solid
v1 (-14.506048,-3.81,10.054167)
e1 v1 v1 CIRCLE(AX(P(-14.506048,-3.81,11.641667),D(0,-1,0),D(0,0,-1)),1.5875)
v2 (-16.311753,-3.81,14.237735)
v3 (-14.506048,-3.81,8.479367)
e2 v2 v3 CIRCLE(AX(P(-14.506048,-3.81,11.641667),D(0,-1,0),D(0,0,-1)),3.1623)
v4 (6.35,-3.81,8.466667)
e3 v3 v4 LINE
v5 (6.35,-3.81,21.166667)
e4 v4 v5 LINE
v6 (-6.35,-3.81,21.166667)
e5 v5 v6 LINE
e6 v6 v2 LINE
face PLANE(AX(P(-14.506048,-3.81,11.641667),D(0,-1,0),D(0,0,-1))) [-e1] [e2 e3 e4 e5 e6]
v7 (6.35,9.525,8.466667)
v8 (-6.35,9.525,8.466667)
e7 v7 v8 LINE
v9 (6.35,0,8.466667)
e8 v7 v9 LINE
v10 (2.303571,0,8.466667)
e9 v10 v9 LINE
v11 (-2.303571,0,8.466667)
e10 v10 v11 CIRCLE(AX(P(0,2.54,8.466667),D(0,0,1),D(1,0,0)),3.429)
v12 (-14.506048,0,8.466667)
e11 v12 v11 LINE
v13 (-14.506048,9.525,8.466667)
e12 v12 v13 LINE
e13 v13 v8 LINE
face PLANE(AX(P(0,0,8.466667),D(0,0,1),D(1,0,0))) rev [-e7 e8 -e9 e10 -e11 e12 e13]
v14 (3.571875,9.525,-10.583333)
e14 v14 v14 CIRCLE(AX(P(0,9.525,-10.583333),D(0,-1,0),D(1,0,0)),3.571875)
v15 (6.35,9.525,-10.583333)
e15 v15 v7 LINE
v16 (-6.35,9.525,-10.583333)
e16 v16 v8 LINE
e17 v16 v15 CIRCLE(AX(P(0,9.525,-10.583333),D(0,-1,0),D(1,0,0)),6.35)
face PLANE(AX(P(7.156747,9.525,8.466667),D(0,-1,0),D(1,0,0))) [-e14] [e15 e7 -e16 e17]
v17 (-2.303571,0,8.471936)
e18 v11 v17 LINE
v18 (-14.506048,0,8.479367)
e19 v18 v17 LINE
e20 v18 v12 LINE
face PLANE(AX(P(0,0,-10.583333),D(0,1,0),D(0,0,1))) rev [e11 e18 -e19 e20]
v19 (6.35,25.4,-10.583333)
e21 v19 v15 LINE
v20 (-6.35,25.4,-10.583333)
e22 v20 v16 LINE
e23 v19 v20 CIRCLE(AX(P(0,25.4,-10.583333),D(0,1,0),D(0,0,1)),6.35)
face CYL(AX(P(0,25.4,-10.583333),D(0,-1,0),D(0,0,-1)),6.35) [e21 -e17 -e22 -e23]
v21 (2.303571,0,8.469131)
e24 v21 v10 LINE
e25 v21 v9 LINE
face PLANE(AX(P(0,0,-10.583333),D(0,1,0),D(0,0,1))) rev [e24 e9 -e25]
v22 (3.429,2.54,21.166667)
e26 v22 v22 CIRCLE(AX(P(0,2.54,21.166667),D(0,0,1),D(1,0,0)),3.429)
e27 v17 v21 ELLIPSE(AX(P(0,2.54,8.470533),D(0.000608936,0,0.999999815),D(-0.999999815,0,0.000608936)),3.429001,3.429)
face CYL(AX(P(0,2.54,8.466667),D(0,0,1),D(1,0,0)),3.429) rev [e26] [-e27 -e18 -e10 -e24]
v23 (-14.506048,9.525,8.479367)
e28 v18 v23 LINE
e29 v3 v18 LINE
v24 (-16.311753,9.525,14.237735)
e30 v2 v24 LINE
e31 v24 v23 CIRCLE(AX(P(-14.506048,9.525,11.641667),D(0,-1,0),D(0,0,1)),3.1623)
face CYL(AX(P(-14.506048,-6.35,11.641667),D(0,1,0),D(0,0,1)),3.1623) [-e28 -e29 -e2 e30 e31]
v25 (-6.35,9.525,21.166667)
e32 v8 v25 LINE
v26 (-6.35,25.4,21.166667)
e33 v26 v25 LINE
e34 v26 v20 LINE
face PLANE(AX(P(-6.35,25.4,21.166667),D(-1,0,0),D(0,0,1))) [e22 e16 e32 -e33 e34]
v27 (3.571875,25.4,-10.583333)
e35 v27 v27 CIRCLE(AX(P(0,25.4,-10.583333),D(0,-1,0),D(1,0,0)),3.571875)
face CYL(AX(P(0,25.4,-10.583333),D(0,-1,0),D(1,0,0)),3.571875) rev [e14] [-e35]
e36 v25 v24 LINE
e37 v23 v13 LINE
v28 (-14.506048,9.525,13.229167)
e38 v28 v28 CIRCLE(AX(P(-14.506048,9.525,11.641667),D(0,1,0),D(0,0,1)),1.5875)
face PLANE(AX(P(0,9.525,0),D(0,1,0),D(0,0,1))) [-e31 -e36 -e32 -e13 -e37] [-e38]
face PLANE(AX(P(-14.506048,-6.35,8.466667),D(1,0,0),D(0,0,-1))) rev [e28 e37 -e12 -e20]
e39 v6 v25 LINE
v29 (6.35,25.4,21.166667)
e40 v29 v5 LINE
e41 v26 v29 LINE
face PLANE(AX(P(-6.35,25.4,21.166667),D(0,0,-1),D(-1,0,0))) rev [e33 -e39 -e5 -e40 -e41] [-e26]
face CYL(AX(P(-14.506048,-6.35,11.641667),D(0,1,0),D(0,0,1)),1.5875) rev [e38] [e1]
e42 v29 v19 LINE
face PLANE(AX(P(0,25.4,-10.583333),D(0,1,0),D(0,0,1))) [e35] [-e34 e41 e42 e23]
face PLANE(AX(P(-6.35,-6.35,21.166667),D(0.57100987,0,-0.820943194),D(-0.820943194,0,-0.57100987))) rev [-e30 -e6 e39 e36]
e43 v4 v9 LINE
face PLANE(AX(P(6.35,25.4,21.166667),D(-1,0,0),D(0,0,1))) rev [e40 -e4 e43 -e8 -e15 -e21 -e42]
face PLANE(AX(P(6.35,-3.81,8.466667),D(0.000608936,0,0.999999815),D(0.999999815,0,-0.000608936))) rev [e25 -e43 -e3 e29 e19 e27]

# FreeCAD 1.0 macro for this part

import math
import FreeCAD as App
import Part
import Sketcher
Q = App.Units.Quantity

doc = App.newDocument("Part")
body = doc.addObject("PartDesign::Body", "Body")

sketch1 = body.newObject("Sketcher::SketchObject", "Sketch")
sketch1.AttachmentSupport = (doc.getObject("XZ_Plane"), [""])
sketch1.MapMode = "FlatFace"
sketch1.addGeometry([
    Part.LineSegment(App.Vector(-6.35, 21.166667, 0), App.Vector(6.35, 21.166667, 0)),
    Part.LineSegment(App.Vector(6.35, 21.166667, 0), App.Vector(6.35, -10.583333, 0)),
    Part.ArcOfCircle(Part.Circle(App.Vector(0, -10.583333, 0), App.Vector(0, 0, 1), 6.35), math.radians(180), math.radians(360)),
    Part.LineSegment(App.Vector(-6.35, -10.583333, 0), App.Vector(-6.35, 21.166667, 0)),
], False)
sketch1.addConstraint([
    Sketcher.Constraint("Coincident", 0, 2, 1, 1),
    Sketcher.Constraint("Tangent", 1, 2, 2, 2),
    Sketcher.Constraint("Tangent", 2, 1, 3, 1),
    Sketcher.Constraint("Coincident", 3, 2, 0, 1),
    Sketcher.Constraint("Horizontal", 0),
    Sketcher.Constraint("Vertical", 1),
    Sketcher.Constraint("Vertical", 3),
    Sketcher.Constraint("PointOnObject", 2, 3, -2),
    Sketcher.Constraint("Radius", 2, Q("0.25 in")),
    Sketcher.Constraint("DistanceY", 1, 2, 1, 1, Q("1.25 in")),
    Sketcher.Constraint("DistanceY", 2, 3, -1, 1, 10.583333),
])
pad1 = body.newObject("PartDesign::Pad", "Pad")
pad1.Profile = sketch1
pad1.Length = Q("1 in")
pad1.Reversed = True

sketch2 = body.newObject("Sketcher::SketchObject", "Sketch001")
sketch2.AttachmentSupport = (doc.getObject("XZ_Plane"), [""])
sketch2.MapMode = "FlatFace"
sketch2.addGeometry(Part.Circle(App.Vector(0, -10.583333, 0), App.Vector(0, 0, 1), 3.175), False)
sketch2.addConstraint([
    Sketcher.Constraint("PointOnObject", 0, 3, -2),
    Sketcher.Constraint("Diameter", 0, Q("0.25 in")),
    Sketcher.Constraint("DistanceY", 0, 3, -1, 1, 10.583333),
])
pocket1 = body.newObject("PartDesign::Pocket", "Pocket")
pocket1.Profile = sketch2
pocket1.Type = "UpToFirst"

sketch3 = body.newObject("Sketcher::SketchObject", "Sketch002")
sketch3.AttachmentSupport = (doc.getObject("XY_Plane"), [""])
sketch3.MapMode = "FlatFace"
sketch3.AttachmentOffset = App.Placement(App.Vector(0, 0, -16.933333), App.Rotation())
sketch3.addGeometry([
    Part.LineSegment(App.Vector(-6.912457, 9.525, 0), App.Vector(-6.912457, 0, 0)),
    Part.LineSegment(App.Vector(-6.912457, 0, 0), App.Vector(7.156747, 0, 0)),
    Part.LineSegment(App.Vector(7.156747, 0, 0), App.Vector(7.156747, 9.525, 0)),
    Part.LineSegment(App.Vector(7.156747, 9.525, 0), App.Vector(-6.912457, 9.525, 0)),
], False)
sketch3.addConstraint([
    Sketcher.Constraint("Coincident", 0, 2, 1, 1),
    Sketcher.Constraint("Coincident", 1, 2, 2, 1),
    Sketcher.Constraint("Coincident", 2, 2, 3, 1),
    Sketcher.Constraint("Coincident", 3, 2, 0, 1),
    Sketcher.Constraint("Vertical", 0),
    Sketcher.Constraint("Horizontal", 1),
    Sketcher.Constraint("Vertical", 2),
    Sketcher.Constraint("Horizontal", 3),
    Sketcher.Constraint("PointOnObject", 0, 2, -1),
    Sketcher.Constraint("DistanceY", 0, 2, 0, 1, Q("0.375 in")),
    Sketcher.Constraint("DistanceX", 1, 1, 1, 2, 14.069204),
    Sketcher.Constraint("DistanceX", 0, 2, -1, 1, 6.912457),
])
pocket2 = body.newObject("PartDesign::Pocket", "Pocket001")
pocket2.Profile = sketch3
pocket2.Length = Q("1 in")
pocket2.Reversed = True

sketch4 = body.newObject("Sketcher::SketchObject", "Sketch003")
sketch4.AttachmentSupport = (doc.getObject("YZ_Plane"), [""])
sketch4.MapMode = "FlatFace"
sketch4.AttachmentOffset = App.Placement(App.Vector(0, 0, 0.25 * 25.4), App.Rotation())
sketch4.addGeometry([
    Part.LineSegment(App.Vector(9.525, 21.166667, 0), App.Vector(0, 21.166667, 0)),
    Part.LineSegment(App.Vector(0, 21.166667, 0), App.Vector(0, 8.466667, 0)),
    Part.LineSegment(App.Vector(0, 8.466667, 0), App.Vector(9.525, 8.466667, 0)),
    Part.LineSegment(App.Vector(9.525, 8.466667, 0), App.Vector(9.525, 21.166667, 0)),
], False)
sketch4.addConstraint([
    Sketcher.Constraint("Coincident", 0, 2, 1, 1),
    Sketcher.Constraint("Coincident", 1, 2, 2, 1),
    Sketcher.Constraint("Coincident", 2, 2, 3, 1),
    Sketcher.Constraint("Coincident", 3, 2, 0, 1),
    Sketcher.Constraint("Horizontal", 0),
    Sketcher.Constraint("Vertical", 1),
    Sketcher.Constraint("Horizontal", 2),
    Sketcher.Constraint("Vertical", 3),
    Sketcher.Constraint("PointOnObject", 0, 2, -2),
    Sketcher.Constraint("DistanceY", 1, 2, 1, 1, Q("0.5 in")),
    Sketcher.Constraint("DistanceX", 0, 2, 0, 1, Q("0.375 in")),
    Sketcher.Constraint("DistanceY", -1, 1, 0, 2, 21.166667),
])
pad2 = body.newObject("PartDesign::Pad", "Pad001")
pad2.Profile = sketch4
pad2.Length = Q("0.5 in")

sketch5 = body.newObject("Sketcher::SketchObject", "Sketch004")
sketch5.AttachmentSupport = (doc.getObject("XZ_Plane"), [""])
sketch5.MapMode = "FlatFace"
sketch5.AttachmentOffset = App.Placement(App.Vector(0, 0, -0.375 * 25.4), App.Rotation())
sketch5.addGeometry([
    Part.ArcOfCircle(Part.Circle(App.Vector(15.875, 11.641662, 0), App.Vector(0, 0, 1), 3.174996), math.radians(-90.000001), math.radians(-88.090747)),
    Part.ArcOfCircle(Part.Circle(App.Vector(15.875, 11.641667, 0), App.Vector(0, 0, 1), 3.175), math.radians(-88.090748), math.radians(0)),
    Part.LineSegment(App.Vector(19.05, 11.641667, 0), App.Vector(19.05, 8.466667, 0)),
    Part.LineSegment(App.Vector(19.05, 8.466667, 0), App.Vector(15.875, 8.466667, 0)),
    Part.LineSegment(App.Vector(12.84784, 12.599229, 0), App.Vector(6.35, 21.166667, 0)),
    Part.LineSegment(App.Vector(6.35, 21.166667, 0), App.Vector(19.05, 21.166667, 0)),
    Part.LineSegment(App.Vector(19.05, 21.166667, 0), App.Vector(19.05, 11.641667, 0)),
    Part.ArcOfCircle(Part.Circle(App.Vector(15.875, 11.641667, 0), App.Vector(0, 0, 1), 3.175), math.radians(0), math.radians(162.446611)),
    Part.Circle(App.Vector(15.875, 11.641667, 0), App.Vector(0, 0, 1), 1.5875),
], False)
sketch5.addConstraint([
    Sketcher.Constraint("Tangent", 0, 2, 1, 1),
    Sketcher.Constraint("Tangent", 1, 2, 2, 1),
    Sketcher.Constraint("Coincident", 2, 2, 3, 1),
    Sketcher.Constraint("Tangent", 3, 2, 0, 1),
    Sketcher.Constraint("Coincident", 4, 2, 5, 1),
    Sketcher.Constraint("Coincident", 5, 2, 6, 1),
    Sketcher.Constraint("Tangent", 6, 2, 7, 1),
    Sketcher.Constraint("Coincident", 7, 2, 4, 1),
    Sketcher.Constraint("Vertical", 2),
    Sketcher.Constraint("Horizontal", 3),
    Sketcher.Constraint("Horizontal", 5),
    Sketcher.Constraint("Vertical", 6),
    Sketcher.Constraint("Coincident", 7, 3, 0, 3),
    Sketcher.Constraint("Coincident", 8, 3, 0, 3),
    Sketcher.Constraint("Coincident", 6, 2, 1, 2),
    Sketcher.Constraint("Diameter", 8, Q("0.125 in")),
    Sketcher.Constraint("DistanceX", 5, 1, 5, 2, Q("0.5 in")),
    Sketcher.Constraint("Radius", 0, Q("0.1249998 in")),
    Sketcher.Constraint("DistanceY", 6, 2, 6, 1, Q("0.375 in")),
    Sketcher.Constraint("DistanceX", -1, 1, 1, 2, Q("0.75 in")),
    Sketcher.Constraint("Distance", 4, 10.75281),
    Sketcher.Constraint("DistanceX", -1, 1, 0, 2, 15.98078),
    Sketcher.Constraint("DistanceY", -1, 1, 0, 2, 8.468429),
])
pocket3 = body.newObject("PartDesign::Pocket", "Pocket002")
pocket3.Profile = sketch5
pocket3.Length = Q("0.5 in")
pocket3.Reversed = True

sketch6 = body.newObject("Sketcher::SketchObject", "Sketch005")
sketch6.AttachmentSupport = (doc.getObject("XZ_Plane"), [""])
sketch6.MapMode = "FlatFace"
sketch6.AttachmentOffset = App.Placement(App.Vector(0, 0, -0.375 * 25.4), App.Rotation())
sketch6.addGeometry([
    Part.LineSegment(App.Vector(6.35, 0, 0), App.Vector(6.35, 21.166667, 0)),
    Part.LineSegment(App.Vector(6.35, 21.166667, 0), App.Vector(19.564088, 21.166667, 0)),
    Part.LineSegment(App.Vector(19.564088, 21.166667, 0), App.Vector(19.564088, 0, 0)),
    Part.LineSegment(App.Vector(19.564088, 0, 0), App.Vector(6.35, 0, 0)),
], False)
sketch6.addConstraint([
    Sketcher.Constraint("Coincident", 0, 2, 1, 1),
    Sketcher.Constraint("Coincident", 1, 2, 2, 1),
    Sketcher.Constraint("Coincident", 2, 2, 3, 1),
    Sketcher.Constraint("Coincident", 3, 2, 0, 1),
    Sketcher.Constraint("Vertical", 0),
    Sketcher.Constraint("Horizontal", 1),
    Sketcher.Constraint("Vertical", 2),
    Sketcher.Constraint("Horizontal", 3),
    Sketcher.Constraint("PointOnObject", 2, 2, -1),
    Sketcher.Constraint("DistanceX", -1, 1, 0, 2, Q("0.25 in")),
    Sketcher.Constraint("DistanceX", 1, 1, 1, 2, 13.214088),
    Sketcher.Constraint("DistanceY", 0, 1, 0, 2, 21.166667),
])
pocket4 = body.newObject("PartDesign::Pocket", "Pocket003")
pocket4.Profile = sketch6
pocket4.Length = Q("0.375 in")
pocket4.Reversed = True

sketch7 = body.newObject("Sketcher::SketchObject", "Sketch006")
sketch7.AttachmentSupport = (doc.getObject("YZ_Plane"), [""])
sketch7.MapMode = "FlatFace"
sketch7.AttachmentOffset = App.Placement(App.Vector(0, 0, -0.25 * 25.4), App.Rotation())
sketch7.addGeometry([
    Part.LineSegment(App.Vector(9.525, 8.466667, 0), App.Vector(0, 8.466667, 0)),
    Part.LineSegment(App.Vector(0, 8.466667, 0), App.Vector(0, 21.166667, 0)),
    Part.LineSegment(App.Vector(0, 21.166667, 0), App.Vector(9.525, 21.166667, 0)),
    Part.LineSegment(App.Vector(9.525, 21.166667, 0), App.Vector(9.525, 8.466667, 0)),
], False)
sketch7.addConstraint([
    Sketcher.Constraint("Coincident", 0, 2, 1, 1),
    Sketcher.Constraint("Coincident", 1, 2, 2, 1),
    Sketcher.Constraint("Coincident", 2, 2, 3, 1),
    Sketcher.Constraint("Coincident", 3, 2, 0, 1),
    Sketcher.Constraint("Horizontal", 0),
    Sketcher.Constraint("Vertical", 1),
    Sketcher.Constraint("Horizontal", 2),
    Sketcher.Constraint("Vertical", 3),
    Sketcher.Constraint("PointOnObject", 0, 2, -2),
    Sketcher.Constraint("DistanceY", 1, 1, 1, 2, Q("0.5 in")),
    Sketcher.Constraint("DistanceX", 0, 2, 0, 1, Q("0.375 in")),
    Sketcher.Constraint("DistanceY", -1, 1, 0, 2, 8.466667),
])
pad3 = body.newObject("PartDesign::Pad", "Pad002")
pad3.Profile = sketch7
pad3.Length = Q("0.5 in")
pad3.Reversed = True

sketch8 = body.newObject("Sketcher::SketchObject", "Sketch007")
sketch8.AttachmentSupport = (doc.getObject("XZ_Plane"), [""])
sketch8.MapMode = "FlatFace"
sketch8.AttachmentOffset = App.Placement(App.Vector(0, 0, -0.375 * 25.4), App.Rotation())
sketch8.addGeometry([
    Part.LineSegment(App.Vector(-6.35, 8.466667, 0), App.Vector(-19.05, 8.466667, 0)),
    Part.LineSegment(App.Vector(-19.05, 8.466667, 0), App.Vector(-19.05, 21.166667, 0)),
    Part.LineSegment(App.Vector(-19.05, 21.166667, 0), App.Vector(-6.35, 21.166667, 0)),
    Part.LineSegment(App.Vector(-6.35, 21.166667, 0), App.Vector(-6.35, 8.466667, 0)),
], False)
sketch8.addConstraint([
    Sketcher.Constraint("Coincident", 0, 2, 1, 1),
    Sketcher.Constraint("Coincident", 1, 2, 2, 1),
    Sketcher.Constraint("Coincident", 2, 2, 3, 1),
    Sketcher.Constraint("Coincident", 3, 2, 0, 1),
    Sketcher.Constraint("Horizontal", 0),
    Sketcher.Constraint("Vertical", 1),
    Sketcher.Constraint("Horizontal", 2),
    Sketcher.Constraint("Vertical", 3),
    Sketcher.Constraint("Equal", 2, 1),
    Sketcher.Constraint("DistanceX", 0, 2, 0, 1, Q("0.5 in")),
    Sketcher.Constraint("DistanceX", 0, 2, -1, 1, Q("0.75 in")),
    Sketcher.Constraint("DistanceY", -1, 1, 0, 2, 8.466667),
])
pocket5 = body.newObject("PartDesign::Pocket", "Pocket004")
pocket5.Profile = sketch8
pocket5.Length = Q("0.5 in")
pocket5.Reversed = True

sketch9 = body.newObject("Sketcher::SketchObject", "Sketch008")
sketch9.AttachmentSupport = (doc.getObject("XZ_Plane"), [""])
sketch9.MapMode = "FlatFace"
sketch9.AttachmentOffset = App.Placement(App.Vector(0, 0, -0.375 * 25.4), App.Rotation())
sketch9.addGeometry([
    Part.LineSegment(App.Vector(-17.681048, 21.166667, 0), App.Vector(-6.35, 21.166667, 0)),
    Part.LineSegment(App.Vector(-6.35, 21.166667, 0), App.Vector(-6.35, 8.466667, 0)),
    Part.LineSegment(App.Vector(-6.35, 8.466667, 0), App.Vector(-17.681048, 8.466667, 0)),
    Part.LineSegment(App.Vector(-17.681048, 8.466667, 0), App.Vector(-17.681048, 21.166667, 0)),
], False)
sketch9.addConstraint([
    Sketcher.Constraint("Coincident", 0, 2, 1, 1),
    Sketcher.Constraint("Coincident", 1, 2, 2, 1),
    Sketcher.Constraint("Coincident", 2, 2, 3, 1),
    Sketcher.Constraint("Coincident", 3, 2, 0, 1),
    Sketcher.Constraint("Horizontal", 0),
    Sketcher.Constraint("Vertical", 1),
    Sketcher.Constraint("Horizontal", 2),
    Sketcher.Constraint("Vertical", 3),
    Sketcher.Constraint("DistanceY", 1, 2, 1, 1, Q("0.5 in")),
    Sketcher.Constraint("DistanceX", 0, 2, -1, 1, Q("0.25 in")),
    Sketcher.Constraint("DistanceX", 0, 1, 0, 2, 11.331048),
    Sketcher.Constraint("DistanceY", -1, 1, 0, 2, 21.166667),
])
pad4 = body.newObject("PartDesign::Pad", "Pad003")
pad4.Profile = sketch9
pad4.Length = Q("0.375 in")

sketch10 = body.newObject("Sketcher::SketchObject", "Sketch009")
sketch10.AttachmentSupport = (doc.getObject("XZ_Plane"), [""])
sketch10.MapMode = "FlatFace"
sketch10.AttachmentOffset = App.Placement(App.Vector(0, 0, -0.375 * 25.4), App.Rotation())
sketch10.addGeometry(Part.Circle(App.Vector(0, -10.583333, 0), App.Vector(0, 0, 1), 3.175), False)
sketch10.addConstraint([
    Sketcher.Constraint("PointOnObject", 0, 3, -2),
    Sketcher.Constraint("Diameter", 0, Q("0.25 in")),
    Sketcher.Constraint("DistanceY", 0, 3, -1, 1, 10.583333),
])
pad5 = body.newObject("PartDesign::Pad", "Pad004")
pad5.Profile = sketch10
pad5.Length = Q("0.625 in")
pad5.Reversed = True

sketch11 = body.newObject("Sketcher::SketchObject", "Sketch010")
sketch11.AttachmentSupport = (doc.getObject("XZ_Plane"), [""])
sketch11.MapMode = "FlatFace"
sketch11.AttachmentOffset = App.Placement(App.Vector(0, 0, -0.375 * 25.4), App.Rotation())
sketch11.addGeometry(Part.Circle(App.Vector(0, -10.583333, 0), App.Vector(0, 0, 1), 3.571875), False)
sketch11.addConstraint([
    Sketcher.Constraint("PointOnObject", 0, 3, -2),
    Sketcher.Constraint("Diameter", 0, Q("0.28125 in")),
    Sketcher.Constraint("DistanceY", 0, 3, -1, 1, 10.583333),
])
pocket6 = body.newObject("PartDesign::Pocket", "Pocket005")
pocket6.Profile = sketch11
pocket6.Length = Q("0.625 in")

sketch12 = body.newObject("Sketcher::SketchObject", "Sketch011")
sketch12.AttachmentSupport = (doc.getObject("XZ_Plane"), [""])
sketch12.MapMode = "FlatFace"
sketch12.AttachmentOffset = App.Placement(App.Vector(0, 0, -0.375 * 25.4), App.Rotation())
sketch12.addGeometry([
    Part.Circle(App.Vector(-14.506048, 11.641667, 0), App.Vector(0, 0, 1), 1.5875),
    Part.LineSegment(App.Vector(-14.506048, 8.466667, 0), App.Vector(-17.681048, 8.466667, 0)),
    Part.LineSegment(App.Vector(-17.681048, 8.466667, 0), App.Vector(-17.681048, 21.166667, 0)),
    Part.LineSegment(App.Vector(-17.681048, 21.166667, 0), App.Vector(-6.35, 21.166667, 0)),
    Part.LineSegment(App.Vector(-6.35, 21.166667, 0), App.Vector(-16.311753, 14.237735, 0)),
    Part.ArcOfCircle(Part.Circle(App.Vector(-14.506048, 11.641667, 0), App.Vector(0, 0, 1), 3.1623), math.radians(124.820677), math.radians(270)),
    Part.LineSegment(App.Vector(-14.506048, 8.479367, 0), App.Vector(-14.506048, 8.466667, 0)),
], False)
sketch12.addConstraint([
    Sketcher.Constraint("Coincident", 1, 2, 2, 1),
    Sketcher.Constraint("Coincident", 2, 2, 3, 1),
    Sketcher.Constraint("Coincident", 3, 2, 4, 1),
    Sketcher.Constraint("Tangent", 4, 2, 5, 1),
    Sketcher.Constraint("Coincident", 5, 2, 6, 1),
    Sketcher.Constraint("Coincident", 6, 2, 1, 1),
    Sketcher.Constraint("Horizontal", 1),
    Sketcher.Constraint("Vertical", 2),
    Sketcher.Constraint("Horizontal", 3),
    Sketcher.Constraint("Vertical", 6),
    Sketcher.Constraint("Coincident", 5, 3, 0, 3),
    Sketcher.Constraint("Vertical", 0, 3, 5, 2),
    Sketcher.Constraint("Diameter", 0, Q("0.125 in")),
    Sketcher.Constraint("DistanceY", 2, 1, 2, 2, Q("0.5 in")),
    Sketcher.Constraint("Radius", 5, Q("0.1245 in")),
    Sketcher.Constraint("DistanceX", 1, 2, 1, 1, Q("0.125 in")),
    Sketcher.Constraint("DistanceX", 3, 2, -1, 1, Q("0.25 in")),
    Sketcher.Constraint("DistanceY", 6, 2, 6, 1, Q("0.0005 in")),
    Sketcher.Constraint("DistanceX", 3, 1, 3, 2, 11.331048),
    Sketcher.Constraint("DistanceY", -1, 1, 0, 3, 11.641667),
])
pocket7 = body.newObject("PartDesign::Pocket", "Pocket006")
pocket7.Profile = sketch12
pocket7.Length = Q("0.625 in")
pocket7.Reversed = True

sketch13 = body.newObject("Sketcher::SketchObject", "Sketch012")
sketch13.AttachmentSupport = (doc.getObject("XZ_Plane"), [""])
sketch13.MapMode = "FlatFace"
sketch13.addGeometry([
    Part.LineSegment(App.Vector(6.35, 21.166667, 0), App.Vector(-6.35, 21.166667, 0)),
    Part.LineSegment(App.Vector(-6.35, 21.166667, 0), App.Vector(-16.311753, 14.237735, 0)),
    Part.ArcOfCircle(Part.Circle(App.Vector(-14.506048, 11.641667, 0), App.Vector(0, 0, 1), 3.1623), math.radians(124.820677), math.radians(270)),
    Part.LineSegment(App.Vector(-14.506048, 8.479367, 0), App.Vector(6.35, 8.466667, 0)),
    Part.LineSegment(App.Vector(6.35, 8.466667, 0), App.Vector(6.35, 21.166667, 0)),
    Part.Circle(App.Vector(-14.506048, 11.641667, 0), App.Vector(0, 0, 1), 1.5875),
], False)
sketch13.addConstraint([
    Sketcher.Constraint("Coincident", 0, 2, 1, 1),
    Sketcher.Constraint("Tangent", 1, 2, 2, 1),
    Sketcher.Constraint("Coincident", 2, 2, 3, 1),
    Sketcher.Constraint("Coincident", 3, 2, 4, 1),
    Sketcher.Constraint("Coincident", 4, 2, 0, 1),
    Sketcher.Constraint("Horizontal", 0),
    Sketcher.Constraint("Vertical", 4),
    Sketcher.Constraint("Coincident", 5, 3, 2, 3),
    Sketcher.Constraint("Vertical", 5, 3, 2, 2),
    Sketcher.Constraint("Equal", 0, 4),
    Sketcher.Constraint("Diameter", 5, Q("0.125 in")),
    Sketcher.Constraint("DistanceX", 0, 2, 0, 1, Q("0.5 in")),
    Sketcher.Constraint("Radius", 2, Q("0.1245 in")),
    Sketcher.Constraint("DistanceX", 0, 2, -1, 1, Q("0.25 in")),
    Sketcher.Constraint("DistanceY", 2, 3, 0, 2, Q("0.375 in")),
    Sketcher.Constraint("Distance", 1, 12.134521),
    Sketcher.Constraint("DistanceY", -1, 1, 2, 3, 11.641667),
])
pad6 = body.newObject("PartDesign::Pad", "Pad005")
pad6.Profile = sketch13
pad6.Length = Q("0.15 in")

sketch14 = body.newObject("Sketcher::SketchObject", "Sketch013")
sketch14.AttachmentSupport = (doc.getObject("XY_Plane"), [""])
sketch14.MapMode = "FlatFace"
sketch14.AttachmentOffset = App.Placement(App.Vector(0, 0, 21.166667), App.Rotation())
sketch14.addGeometry(Part.Circle(App.Vector(0, 2.54, 0), App.Vector(0, 0, 1), 3.429), False)
sketch14.addConstraint([
    Sketcher.Constraint("PointOnObject", 0, 3, -2),
    Sketcher.Constraint("Diameter", 0, Q("0.27 in")),
    Sketcher.Constraint("DistanceY", -1, 1, 0, 3, Q("0.1 in")),
])
pocket8 = body.newObject("PartDesign::Pocket", "Pocket007")
pocket8.Profile = sketch14
pocket8.Length = Q("0.5 in")

doc.recompute()
